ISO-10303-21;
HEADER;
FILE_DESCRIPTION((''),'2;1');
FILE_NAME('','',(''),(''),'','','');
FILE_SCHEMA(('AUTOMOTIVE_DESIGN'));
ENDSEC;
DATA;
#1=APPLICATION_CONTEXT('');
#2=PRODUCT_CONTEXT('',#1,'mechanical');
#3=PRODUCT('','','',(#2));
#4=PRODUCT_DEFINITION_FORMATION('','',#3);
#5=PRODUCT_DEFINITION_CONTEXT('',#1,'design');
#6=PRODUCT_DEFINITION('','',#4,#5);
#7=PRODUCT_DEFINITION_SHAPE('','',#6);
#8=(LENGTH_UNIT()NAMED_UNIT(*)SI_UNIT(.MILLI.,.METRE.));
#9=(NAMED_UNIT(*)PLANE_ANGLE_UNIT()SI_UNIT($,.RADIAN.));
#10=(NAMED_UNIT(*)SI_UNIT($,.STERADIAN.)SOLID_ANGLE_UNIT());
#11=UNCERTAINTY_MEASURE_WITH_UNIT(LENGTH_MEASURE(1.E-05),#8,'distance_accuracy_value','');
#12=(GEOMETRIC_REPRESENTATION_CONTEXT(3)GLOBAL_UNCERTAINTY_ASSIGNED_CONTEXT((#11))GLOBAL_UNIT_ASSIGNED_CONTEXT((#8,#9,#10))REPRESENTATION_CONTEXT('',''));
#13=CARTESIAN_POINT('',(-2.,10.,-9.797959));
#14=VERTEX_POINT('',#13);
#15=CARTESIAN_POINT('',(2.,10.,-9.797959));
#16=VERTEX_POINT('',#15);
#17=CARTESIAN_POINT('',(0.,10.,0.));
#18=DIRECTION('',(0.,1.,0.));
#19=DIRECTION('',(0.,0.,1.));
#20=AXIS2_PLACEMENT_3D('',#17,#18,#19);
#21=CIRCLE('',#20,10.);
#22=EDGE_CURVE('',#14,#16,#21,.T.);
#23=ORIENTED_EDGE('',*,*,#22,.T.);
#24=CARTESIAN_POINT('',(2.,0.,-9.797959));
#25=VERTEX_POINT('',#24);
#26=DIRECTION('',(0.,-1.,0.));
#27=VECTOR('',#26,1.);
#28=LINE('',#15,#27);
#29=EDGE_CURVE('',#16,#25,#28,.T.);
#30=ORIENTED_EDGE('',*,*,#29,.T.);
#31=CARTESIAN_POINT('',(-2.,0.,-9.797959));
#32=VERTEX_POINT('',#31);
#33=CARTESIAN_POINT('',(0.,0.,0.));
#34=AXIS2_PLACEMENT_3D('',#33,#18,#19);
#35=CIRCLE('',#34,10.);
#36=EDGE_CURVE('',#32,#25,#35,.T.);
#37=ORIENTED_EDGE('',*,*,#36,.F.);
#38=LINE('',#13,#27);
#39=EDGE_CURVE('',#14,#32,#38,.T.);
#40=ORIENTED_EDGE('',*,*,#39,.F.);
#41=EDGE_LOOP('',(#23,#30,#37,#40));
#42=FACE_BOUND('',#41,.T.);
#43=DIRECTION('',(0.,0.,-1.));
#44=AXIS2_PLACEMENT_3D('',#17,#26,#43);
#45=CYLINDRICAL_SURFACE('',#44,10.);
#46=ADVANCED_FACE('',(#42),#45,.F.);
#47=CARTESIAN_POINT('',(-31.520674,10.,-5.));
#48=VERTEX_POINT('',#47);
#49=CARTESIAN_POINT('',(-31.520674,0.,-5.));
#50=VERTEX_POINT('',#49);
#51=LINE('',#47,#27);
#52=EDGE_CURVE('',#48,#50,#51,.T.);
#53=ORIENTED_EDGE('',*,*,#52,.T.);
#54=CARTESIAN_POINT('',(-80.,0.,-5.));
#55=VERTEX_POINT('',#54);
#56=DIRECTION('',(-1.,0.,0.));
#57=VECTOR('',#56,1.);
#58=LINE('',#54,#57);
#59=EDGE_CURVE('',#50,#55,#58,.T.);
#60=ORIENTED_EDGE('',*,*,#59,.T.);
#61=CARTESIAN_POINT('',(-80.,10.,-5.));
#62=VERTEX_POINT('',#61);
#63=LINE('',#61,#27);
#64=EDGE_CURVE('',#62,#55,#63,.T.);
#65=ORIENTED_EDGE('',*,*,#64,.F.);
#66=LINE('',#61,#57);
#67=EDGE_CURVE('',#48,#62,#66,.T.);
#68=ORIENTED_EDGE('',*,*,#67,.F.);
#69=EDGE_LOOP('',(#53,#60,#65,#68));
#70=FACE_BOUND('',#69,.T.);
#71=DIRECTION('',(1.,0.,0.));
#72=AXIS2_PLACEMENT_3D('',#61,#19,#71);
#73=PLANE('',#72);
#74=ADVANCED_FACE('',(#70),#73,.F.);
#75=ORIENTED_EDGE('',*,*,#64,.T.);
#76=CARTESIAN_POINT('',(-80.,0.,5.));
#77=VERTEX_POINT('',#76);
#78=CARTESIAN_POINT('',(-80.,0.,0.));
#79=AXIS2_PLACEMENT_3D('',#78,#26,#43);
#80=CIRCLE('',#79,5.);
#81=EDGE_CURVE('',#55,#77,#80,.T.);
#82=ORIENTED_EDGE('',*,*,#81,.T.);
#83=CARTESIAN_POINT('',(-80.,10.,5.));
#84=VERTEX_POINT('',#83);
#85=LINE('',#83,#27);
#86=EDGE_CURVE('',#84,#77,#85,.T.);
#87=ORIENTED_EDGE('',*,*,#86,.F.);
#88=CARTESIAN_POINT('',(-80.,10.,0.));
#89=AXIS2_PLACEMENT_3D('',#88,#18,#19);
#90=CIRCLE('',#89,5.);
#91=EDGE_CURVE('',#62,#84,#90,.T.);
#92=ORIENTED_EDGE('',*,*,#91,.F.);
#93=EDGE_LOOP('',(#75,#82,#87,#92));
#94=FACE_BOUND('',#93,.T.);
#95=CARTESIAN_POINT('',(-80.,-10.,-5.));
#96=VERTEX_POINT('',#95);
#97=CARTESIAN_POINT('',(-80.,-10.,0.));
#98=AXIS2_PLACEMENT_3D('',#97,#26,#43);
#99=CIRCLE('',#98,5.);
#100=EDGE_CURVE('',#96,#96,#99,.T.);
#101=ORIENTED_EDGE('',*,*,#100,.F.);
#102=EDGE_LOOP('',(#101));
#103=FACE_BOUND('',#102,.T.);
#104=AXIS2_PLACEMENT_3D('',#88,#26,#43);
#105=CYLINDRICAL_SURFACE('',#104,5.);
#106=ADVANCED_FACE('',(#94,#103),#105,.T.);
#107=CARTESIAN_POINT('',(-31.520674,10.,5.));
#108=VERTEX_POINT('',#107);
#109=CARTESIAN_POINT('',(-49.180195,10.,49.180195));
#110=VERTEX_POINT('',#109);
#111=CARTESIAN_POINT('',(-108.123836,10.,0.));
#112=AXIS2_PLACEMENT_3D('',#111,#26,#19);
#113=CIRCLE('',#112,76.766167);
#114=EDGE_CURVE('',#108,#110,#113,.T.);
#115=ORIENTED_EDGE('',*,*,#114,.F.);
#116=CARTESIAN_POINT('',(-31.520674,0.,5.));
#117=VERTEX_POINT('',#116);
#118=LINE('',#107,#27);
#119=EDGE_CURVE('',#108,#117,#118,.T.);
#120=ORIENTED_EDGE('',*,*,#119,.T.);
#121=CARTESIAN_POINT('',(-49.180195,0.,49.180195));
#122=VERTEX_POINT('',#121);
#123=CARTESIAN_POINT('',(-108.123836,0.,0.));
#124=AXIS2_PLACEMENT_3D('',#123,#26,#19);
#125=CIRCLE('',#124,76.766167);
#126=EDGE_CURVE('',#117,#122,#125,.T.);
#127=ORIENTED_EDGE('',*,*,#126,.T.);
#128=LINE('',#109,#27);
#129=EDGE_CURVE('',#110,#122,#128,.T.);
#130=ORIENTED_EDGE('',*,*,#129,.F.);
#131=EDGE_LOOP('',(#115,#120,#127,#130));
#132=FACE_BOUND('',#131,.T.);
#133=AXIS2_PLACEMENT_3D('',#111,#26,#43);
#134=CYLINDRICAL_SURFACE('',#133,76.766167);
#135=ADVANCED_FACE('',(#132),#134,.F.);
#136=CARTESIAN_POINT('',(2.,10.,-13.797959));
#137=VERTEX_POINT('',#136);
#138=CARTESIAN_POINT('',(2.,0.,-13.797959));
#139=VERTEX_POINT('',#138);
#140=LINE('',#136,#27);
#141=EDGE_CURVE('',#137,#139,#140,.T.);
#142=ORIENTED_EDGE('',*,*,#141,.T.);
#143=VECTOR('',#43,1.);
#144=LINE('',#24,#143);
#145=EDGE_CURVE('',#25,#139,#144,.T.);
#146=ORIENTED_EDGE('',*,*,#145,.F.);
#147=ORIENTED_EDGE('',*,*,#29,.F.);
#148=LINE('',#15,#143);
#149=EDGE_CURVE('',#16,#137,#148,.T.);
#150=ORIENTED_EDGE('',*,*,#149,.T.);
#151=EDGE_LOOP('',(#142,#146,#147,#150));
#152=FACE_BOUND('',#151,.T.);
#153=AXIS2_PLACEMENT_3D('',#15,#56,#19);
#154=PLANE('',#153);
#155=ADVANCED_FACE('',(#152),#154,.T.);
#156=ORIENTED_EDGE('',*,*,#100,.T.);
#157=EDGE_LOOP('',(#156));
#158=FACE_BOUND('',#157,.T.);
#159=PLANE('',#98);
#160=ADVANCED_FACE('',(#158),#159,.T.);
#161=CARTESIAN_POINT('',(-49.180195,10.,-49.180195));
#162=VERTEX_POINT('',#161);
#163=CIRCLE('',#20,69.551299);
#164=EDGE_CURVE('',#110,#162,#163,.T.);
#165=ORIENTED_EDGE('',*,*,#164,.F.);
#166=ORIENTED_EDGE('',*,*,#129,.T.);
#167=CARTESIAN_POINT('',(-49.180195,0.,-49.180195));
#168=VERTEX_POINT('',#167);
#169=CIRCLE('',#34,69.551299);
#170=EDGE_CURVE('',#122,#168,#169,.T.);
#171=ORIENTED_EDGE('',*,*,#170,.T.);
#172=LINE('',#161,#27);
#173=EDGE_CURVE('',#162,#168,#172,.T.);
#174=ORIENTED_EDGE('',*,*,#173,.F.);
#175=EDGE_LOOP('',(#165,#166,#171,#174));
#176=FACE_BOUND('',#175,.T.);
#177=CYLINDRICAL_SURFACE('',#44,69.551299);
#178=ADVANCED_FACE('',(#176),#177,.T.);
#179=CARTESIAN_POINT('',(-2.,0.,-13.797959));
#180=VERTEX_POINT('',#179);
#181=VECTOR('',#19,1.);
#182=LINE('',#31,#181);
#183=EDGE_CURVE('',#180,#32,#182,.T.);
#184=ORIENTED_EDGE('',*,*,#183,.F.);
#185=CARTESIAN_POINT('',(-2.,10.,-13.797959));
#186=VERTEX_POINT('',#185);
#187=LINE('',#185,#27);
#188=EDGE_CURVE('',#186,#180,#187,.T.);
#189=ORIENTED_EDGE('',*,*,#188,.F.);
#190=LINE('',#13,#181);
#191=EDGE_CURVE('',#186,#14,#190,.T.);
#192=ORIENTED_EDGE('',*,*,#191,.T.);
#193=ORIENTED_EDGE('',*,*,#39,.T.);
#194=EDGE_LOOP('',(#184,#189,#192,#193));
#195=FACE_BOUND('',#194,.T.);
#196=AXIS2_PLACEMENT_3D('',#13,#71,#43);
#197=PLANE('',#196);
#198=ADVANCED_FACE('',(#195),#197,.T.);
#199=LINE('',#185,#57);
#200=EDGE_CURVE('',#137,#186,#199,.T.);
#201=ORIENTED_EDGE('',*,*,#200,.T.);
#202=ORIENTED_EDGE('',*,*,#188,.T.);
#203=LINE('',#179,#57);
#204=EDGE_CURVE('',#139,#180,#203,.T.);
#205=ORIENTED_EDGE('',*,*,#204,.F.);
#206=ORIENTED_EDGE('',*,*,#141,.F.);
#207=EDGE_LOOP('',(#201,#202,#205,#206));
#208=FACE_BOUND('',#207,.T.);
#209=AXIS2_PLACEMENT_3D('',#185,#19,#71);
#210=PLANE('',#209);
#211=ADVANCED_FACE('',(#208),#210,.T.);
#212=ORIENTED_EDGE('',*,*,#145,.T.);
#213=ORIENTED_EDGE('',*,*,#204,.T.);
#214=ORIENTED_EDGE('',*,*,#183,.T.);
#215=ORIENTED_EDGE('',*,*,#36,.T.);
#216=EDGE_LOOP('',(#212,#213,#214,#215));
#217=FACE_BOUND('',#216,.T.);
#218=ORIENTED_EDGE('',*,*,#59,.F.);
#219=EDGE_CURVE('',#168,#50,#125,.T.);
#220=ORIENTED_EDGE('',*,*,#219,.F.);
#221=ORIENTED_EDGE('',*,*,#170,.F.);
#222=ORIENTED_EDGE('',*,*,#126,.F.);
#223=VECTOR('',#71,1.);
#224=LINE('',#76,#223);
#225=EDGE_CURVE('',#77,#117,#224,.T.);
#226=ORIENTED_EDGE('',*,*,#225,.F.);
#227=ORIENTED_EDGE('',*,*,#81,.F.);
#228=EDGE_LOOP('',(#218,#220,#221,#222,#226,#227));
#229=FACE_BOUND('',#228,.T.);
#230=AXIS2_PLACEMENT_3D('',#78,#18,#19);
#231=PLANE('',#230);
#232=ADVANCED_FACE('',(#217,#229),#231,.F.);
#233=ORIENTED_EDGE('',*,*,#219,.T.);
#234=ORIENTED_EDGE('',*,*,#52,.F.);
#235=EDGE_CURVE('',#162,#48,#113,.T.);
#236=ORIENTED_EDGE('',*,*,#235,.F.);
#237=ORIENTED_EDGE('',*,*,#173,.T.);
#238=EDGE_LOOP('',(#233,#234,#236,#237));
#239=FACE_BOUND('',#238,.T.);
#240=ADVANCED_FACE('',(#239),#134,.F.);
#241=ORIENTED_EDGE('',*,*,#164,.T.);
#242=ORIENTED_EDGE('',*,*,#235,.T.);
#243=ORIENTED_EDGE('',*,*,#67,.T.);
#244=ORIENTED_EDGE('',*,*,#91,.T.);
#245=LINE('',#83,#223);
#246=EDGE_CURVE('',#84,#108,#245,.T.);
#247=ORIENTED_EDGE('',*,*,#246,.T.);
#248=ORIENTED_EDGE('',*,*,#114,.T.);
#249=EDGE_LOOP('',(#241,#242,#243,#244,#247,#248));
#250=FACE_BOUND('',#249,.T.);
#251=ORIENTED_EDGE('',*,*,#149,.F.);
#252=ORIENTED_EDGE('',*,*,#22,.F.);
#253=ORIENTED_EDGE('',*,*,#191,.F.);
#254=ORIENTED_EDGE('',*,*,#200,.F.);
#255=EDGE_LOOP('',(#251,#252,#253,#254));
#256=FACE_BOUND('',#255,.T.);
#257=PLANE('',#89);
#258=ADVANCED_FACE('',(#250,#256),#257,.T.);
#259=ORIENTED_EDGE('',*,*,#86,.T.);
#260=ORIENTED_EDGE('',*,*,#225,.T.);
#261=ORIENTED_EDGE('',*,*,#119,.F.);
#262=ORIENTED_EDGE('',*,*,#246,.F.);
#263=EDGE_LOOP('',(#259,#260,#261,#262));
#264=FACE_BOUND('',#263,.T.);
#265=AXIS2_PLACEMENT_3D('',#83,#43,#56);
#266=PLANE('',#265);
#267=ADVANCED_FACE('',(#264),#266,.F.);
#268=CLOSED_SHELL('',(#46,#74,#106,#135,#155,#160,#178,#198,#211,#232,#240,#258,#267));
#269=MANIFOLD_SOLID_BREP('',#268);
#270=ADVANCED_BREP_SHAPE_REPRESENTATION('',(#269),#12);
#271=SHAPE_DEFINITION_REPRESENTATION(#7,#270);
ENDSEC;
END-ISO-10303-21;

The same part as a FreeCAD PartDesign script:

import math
import FreeCAD as App
import Part
import Sketcher

V = App.Vector

doc = App.newDocument("Part")
body = doc.addObject("PartDesign::Body", "Body")

sketch1 = doc.addObject("Sketcher::SketchObject", "Sketch")
body.addObject(sketch1)
sketch1.AttachmentSupport = (doc.XZ_Plane, [""])
sketch1.MapMode = "FlatFace"
sketch1.addGeometry([
    Part.LineSegment(V(-31.5, -5, 0), V(-80, -5, 0)),
    Part.ArcOfCircle(Part.Circle(V(-80, 0, 0), V(0, 0, 1), 5), math.radians(90), math.radians(270)),
    Part.LineSegment(V(-80, 5, 0), V(-31.5, 5, 0)),
    Part.ArcOfCircle(Part.Circle(V(-108.1, 0, 0), V(0, 0, 1), 76.8), math.radians(4), math.radians(40)),
    Part.ArcOfCircle(Part.Circle(V(0, 0, 0), V(0, 0, 1), 69.6), math.radians(-135), math.radians(135)),
    Part.ArcOfCircle(Part.Circle(V(-108.1, 0, 0), V(0, 0, 1), 76.8), math.radians(-40), math.radians(-4)),
    Part.LineSegment(V(-2, -9.8, 0), V(-2, -13.8, 0)),
    Part.LineSegment(V(-2, -13.8, 0), V(2, -13.8, 0)),
    Part.LineSegment(V(2, -13.8, 0), V(2, -9.8, 0)),
    Part.ArcOfCircle(Part.Circle(V(0, 0, 0), V(0, 0, 1), 10), math.radians(-78), math.radians(258)),
], False)
sketch1.addConstraint([
    Sketcher.Constraint("Tangent", 0, 2, 1, 2),
    Sketcher.Constraint("Tangent", 1, 1, 2, 1),
    Sketcher.Constraint("Coincident", 2, 2, 3, 1),
    Sketcher.Constraint("Coincident", 3, 2, 4, 2),
    Sketcher.Constraint("Coincident", 4, 1, 5, 1),
    Sketcher.Constraint("Coincident", 5, 2, 0, 1),
    Sketcher.Constraint("Coincident", 6, 2, 7, 1),
    Sketcher.Constraint("Coincident", 7, 2, 8, 1),
    Sketcher.Constraint("Coincident", 8, 2, 9, 1),
    Sketcher.Constraint("Coincident", 9, 2, 6, 1),
    Sketcher.Constraint("Horizontal", 0),
    Sketcher.Constraint("Horizontal", 2),
    Sketcher.Constraint("Vertical", 6),
    Sketcher.Constraint("Horizontal", 7),
    Sketcher.Constraint("Vertical", 8),
    Sketcher.Constraint("Coincident", 4, 3, -1, 1),
    Sketcher.Constraint("Coincident", 9, 3, -1, 1),
    Sketcher.Constraint("Coincident", 5, 3, 3, 3),
    Sketcher.Constraint("Equal", 3, 5),
    Sketcher.Constraint("Symmetric", 2, 2, 5, 2, -1),
    Sketcher.Constraint("Horizontal", 8, 2, 9, 2),
    Sketcher.Constraint("Equal", 7, 6),
    Sketcher.Constraint("Radius", 1, 5.0),
    Sketcher.Constraint("Radius", 9, 10.0),
    Sketcher.Constraint("DistanceX", 7, 1, 7, 2, 4.0),
    Sketcher.Constraint("DistanceX", 1, 3, -1, 1, 80.0),
    Sketcher.Constraint("Radius", 4, 69.551299),
    Sketcher.Constraint("Radius", 3, 76.766167),
    Sketcher.Constraint("DistanceX", 0, 2, 0, 1, 48.479326),
])
pad1 = doc.addObject("PartDesign::Pad", "Pad")
body.addObject(pad1)
pad1.Profile = sketch1
pad1.Length = 10
pad1.Reversed = True

sketch2 = doc.addObject("Sketcher::SketchObject", "Sketch001")
body.addObject(sketch2)
sketch2.AttachmentSupport = (doc.XZ_Plane, [""])
sketch2.MapMode = "FlatFace"
sketch2.AttachmentOffset = App.Placement(V(0, 0, 10), App.Rotation())
sketch2.addGeometry(Part.Circle(V(-80, 0, 0), V(0, 0, 1), 5), False)
sketch2.addConstraint([
    Sketcher.Constraint("PointOnObject", 0, 3, -1),
    Sketcher.Constraint("Diameter", 0, 10.0),
    Sketcher.Constraint("DistanceX", 0, 3, -1, 1, 80.0),
])
pad2 = doc.addObject("PartDesign::Pad", "Pad001")
body.addObject(pad2)
pad2.Profile = sketch2
pad2.Length = 10
pad2.Reversed = True

doc.recompute()
